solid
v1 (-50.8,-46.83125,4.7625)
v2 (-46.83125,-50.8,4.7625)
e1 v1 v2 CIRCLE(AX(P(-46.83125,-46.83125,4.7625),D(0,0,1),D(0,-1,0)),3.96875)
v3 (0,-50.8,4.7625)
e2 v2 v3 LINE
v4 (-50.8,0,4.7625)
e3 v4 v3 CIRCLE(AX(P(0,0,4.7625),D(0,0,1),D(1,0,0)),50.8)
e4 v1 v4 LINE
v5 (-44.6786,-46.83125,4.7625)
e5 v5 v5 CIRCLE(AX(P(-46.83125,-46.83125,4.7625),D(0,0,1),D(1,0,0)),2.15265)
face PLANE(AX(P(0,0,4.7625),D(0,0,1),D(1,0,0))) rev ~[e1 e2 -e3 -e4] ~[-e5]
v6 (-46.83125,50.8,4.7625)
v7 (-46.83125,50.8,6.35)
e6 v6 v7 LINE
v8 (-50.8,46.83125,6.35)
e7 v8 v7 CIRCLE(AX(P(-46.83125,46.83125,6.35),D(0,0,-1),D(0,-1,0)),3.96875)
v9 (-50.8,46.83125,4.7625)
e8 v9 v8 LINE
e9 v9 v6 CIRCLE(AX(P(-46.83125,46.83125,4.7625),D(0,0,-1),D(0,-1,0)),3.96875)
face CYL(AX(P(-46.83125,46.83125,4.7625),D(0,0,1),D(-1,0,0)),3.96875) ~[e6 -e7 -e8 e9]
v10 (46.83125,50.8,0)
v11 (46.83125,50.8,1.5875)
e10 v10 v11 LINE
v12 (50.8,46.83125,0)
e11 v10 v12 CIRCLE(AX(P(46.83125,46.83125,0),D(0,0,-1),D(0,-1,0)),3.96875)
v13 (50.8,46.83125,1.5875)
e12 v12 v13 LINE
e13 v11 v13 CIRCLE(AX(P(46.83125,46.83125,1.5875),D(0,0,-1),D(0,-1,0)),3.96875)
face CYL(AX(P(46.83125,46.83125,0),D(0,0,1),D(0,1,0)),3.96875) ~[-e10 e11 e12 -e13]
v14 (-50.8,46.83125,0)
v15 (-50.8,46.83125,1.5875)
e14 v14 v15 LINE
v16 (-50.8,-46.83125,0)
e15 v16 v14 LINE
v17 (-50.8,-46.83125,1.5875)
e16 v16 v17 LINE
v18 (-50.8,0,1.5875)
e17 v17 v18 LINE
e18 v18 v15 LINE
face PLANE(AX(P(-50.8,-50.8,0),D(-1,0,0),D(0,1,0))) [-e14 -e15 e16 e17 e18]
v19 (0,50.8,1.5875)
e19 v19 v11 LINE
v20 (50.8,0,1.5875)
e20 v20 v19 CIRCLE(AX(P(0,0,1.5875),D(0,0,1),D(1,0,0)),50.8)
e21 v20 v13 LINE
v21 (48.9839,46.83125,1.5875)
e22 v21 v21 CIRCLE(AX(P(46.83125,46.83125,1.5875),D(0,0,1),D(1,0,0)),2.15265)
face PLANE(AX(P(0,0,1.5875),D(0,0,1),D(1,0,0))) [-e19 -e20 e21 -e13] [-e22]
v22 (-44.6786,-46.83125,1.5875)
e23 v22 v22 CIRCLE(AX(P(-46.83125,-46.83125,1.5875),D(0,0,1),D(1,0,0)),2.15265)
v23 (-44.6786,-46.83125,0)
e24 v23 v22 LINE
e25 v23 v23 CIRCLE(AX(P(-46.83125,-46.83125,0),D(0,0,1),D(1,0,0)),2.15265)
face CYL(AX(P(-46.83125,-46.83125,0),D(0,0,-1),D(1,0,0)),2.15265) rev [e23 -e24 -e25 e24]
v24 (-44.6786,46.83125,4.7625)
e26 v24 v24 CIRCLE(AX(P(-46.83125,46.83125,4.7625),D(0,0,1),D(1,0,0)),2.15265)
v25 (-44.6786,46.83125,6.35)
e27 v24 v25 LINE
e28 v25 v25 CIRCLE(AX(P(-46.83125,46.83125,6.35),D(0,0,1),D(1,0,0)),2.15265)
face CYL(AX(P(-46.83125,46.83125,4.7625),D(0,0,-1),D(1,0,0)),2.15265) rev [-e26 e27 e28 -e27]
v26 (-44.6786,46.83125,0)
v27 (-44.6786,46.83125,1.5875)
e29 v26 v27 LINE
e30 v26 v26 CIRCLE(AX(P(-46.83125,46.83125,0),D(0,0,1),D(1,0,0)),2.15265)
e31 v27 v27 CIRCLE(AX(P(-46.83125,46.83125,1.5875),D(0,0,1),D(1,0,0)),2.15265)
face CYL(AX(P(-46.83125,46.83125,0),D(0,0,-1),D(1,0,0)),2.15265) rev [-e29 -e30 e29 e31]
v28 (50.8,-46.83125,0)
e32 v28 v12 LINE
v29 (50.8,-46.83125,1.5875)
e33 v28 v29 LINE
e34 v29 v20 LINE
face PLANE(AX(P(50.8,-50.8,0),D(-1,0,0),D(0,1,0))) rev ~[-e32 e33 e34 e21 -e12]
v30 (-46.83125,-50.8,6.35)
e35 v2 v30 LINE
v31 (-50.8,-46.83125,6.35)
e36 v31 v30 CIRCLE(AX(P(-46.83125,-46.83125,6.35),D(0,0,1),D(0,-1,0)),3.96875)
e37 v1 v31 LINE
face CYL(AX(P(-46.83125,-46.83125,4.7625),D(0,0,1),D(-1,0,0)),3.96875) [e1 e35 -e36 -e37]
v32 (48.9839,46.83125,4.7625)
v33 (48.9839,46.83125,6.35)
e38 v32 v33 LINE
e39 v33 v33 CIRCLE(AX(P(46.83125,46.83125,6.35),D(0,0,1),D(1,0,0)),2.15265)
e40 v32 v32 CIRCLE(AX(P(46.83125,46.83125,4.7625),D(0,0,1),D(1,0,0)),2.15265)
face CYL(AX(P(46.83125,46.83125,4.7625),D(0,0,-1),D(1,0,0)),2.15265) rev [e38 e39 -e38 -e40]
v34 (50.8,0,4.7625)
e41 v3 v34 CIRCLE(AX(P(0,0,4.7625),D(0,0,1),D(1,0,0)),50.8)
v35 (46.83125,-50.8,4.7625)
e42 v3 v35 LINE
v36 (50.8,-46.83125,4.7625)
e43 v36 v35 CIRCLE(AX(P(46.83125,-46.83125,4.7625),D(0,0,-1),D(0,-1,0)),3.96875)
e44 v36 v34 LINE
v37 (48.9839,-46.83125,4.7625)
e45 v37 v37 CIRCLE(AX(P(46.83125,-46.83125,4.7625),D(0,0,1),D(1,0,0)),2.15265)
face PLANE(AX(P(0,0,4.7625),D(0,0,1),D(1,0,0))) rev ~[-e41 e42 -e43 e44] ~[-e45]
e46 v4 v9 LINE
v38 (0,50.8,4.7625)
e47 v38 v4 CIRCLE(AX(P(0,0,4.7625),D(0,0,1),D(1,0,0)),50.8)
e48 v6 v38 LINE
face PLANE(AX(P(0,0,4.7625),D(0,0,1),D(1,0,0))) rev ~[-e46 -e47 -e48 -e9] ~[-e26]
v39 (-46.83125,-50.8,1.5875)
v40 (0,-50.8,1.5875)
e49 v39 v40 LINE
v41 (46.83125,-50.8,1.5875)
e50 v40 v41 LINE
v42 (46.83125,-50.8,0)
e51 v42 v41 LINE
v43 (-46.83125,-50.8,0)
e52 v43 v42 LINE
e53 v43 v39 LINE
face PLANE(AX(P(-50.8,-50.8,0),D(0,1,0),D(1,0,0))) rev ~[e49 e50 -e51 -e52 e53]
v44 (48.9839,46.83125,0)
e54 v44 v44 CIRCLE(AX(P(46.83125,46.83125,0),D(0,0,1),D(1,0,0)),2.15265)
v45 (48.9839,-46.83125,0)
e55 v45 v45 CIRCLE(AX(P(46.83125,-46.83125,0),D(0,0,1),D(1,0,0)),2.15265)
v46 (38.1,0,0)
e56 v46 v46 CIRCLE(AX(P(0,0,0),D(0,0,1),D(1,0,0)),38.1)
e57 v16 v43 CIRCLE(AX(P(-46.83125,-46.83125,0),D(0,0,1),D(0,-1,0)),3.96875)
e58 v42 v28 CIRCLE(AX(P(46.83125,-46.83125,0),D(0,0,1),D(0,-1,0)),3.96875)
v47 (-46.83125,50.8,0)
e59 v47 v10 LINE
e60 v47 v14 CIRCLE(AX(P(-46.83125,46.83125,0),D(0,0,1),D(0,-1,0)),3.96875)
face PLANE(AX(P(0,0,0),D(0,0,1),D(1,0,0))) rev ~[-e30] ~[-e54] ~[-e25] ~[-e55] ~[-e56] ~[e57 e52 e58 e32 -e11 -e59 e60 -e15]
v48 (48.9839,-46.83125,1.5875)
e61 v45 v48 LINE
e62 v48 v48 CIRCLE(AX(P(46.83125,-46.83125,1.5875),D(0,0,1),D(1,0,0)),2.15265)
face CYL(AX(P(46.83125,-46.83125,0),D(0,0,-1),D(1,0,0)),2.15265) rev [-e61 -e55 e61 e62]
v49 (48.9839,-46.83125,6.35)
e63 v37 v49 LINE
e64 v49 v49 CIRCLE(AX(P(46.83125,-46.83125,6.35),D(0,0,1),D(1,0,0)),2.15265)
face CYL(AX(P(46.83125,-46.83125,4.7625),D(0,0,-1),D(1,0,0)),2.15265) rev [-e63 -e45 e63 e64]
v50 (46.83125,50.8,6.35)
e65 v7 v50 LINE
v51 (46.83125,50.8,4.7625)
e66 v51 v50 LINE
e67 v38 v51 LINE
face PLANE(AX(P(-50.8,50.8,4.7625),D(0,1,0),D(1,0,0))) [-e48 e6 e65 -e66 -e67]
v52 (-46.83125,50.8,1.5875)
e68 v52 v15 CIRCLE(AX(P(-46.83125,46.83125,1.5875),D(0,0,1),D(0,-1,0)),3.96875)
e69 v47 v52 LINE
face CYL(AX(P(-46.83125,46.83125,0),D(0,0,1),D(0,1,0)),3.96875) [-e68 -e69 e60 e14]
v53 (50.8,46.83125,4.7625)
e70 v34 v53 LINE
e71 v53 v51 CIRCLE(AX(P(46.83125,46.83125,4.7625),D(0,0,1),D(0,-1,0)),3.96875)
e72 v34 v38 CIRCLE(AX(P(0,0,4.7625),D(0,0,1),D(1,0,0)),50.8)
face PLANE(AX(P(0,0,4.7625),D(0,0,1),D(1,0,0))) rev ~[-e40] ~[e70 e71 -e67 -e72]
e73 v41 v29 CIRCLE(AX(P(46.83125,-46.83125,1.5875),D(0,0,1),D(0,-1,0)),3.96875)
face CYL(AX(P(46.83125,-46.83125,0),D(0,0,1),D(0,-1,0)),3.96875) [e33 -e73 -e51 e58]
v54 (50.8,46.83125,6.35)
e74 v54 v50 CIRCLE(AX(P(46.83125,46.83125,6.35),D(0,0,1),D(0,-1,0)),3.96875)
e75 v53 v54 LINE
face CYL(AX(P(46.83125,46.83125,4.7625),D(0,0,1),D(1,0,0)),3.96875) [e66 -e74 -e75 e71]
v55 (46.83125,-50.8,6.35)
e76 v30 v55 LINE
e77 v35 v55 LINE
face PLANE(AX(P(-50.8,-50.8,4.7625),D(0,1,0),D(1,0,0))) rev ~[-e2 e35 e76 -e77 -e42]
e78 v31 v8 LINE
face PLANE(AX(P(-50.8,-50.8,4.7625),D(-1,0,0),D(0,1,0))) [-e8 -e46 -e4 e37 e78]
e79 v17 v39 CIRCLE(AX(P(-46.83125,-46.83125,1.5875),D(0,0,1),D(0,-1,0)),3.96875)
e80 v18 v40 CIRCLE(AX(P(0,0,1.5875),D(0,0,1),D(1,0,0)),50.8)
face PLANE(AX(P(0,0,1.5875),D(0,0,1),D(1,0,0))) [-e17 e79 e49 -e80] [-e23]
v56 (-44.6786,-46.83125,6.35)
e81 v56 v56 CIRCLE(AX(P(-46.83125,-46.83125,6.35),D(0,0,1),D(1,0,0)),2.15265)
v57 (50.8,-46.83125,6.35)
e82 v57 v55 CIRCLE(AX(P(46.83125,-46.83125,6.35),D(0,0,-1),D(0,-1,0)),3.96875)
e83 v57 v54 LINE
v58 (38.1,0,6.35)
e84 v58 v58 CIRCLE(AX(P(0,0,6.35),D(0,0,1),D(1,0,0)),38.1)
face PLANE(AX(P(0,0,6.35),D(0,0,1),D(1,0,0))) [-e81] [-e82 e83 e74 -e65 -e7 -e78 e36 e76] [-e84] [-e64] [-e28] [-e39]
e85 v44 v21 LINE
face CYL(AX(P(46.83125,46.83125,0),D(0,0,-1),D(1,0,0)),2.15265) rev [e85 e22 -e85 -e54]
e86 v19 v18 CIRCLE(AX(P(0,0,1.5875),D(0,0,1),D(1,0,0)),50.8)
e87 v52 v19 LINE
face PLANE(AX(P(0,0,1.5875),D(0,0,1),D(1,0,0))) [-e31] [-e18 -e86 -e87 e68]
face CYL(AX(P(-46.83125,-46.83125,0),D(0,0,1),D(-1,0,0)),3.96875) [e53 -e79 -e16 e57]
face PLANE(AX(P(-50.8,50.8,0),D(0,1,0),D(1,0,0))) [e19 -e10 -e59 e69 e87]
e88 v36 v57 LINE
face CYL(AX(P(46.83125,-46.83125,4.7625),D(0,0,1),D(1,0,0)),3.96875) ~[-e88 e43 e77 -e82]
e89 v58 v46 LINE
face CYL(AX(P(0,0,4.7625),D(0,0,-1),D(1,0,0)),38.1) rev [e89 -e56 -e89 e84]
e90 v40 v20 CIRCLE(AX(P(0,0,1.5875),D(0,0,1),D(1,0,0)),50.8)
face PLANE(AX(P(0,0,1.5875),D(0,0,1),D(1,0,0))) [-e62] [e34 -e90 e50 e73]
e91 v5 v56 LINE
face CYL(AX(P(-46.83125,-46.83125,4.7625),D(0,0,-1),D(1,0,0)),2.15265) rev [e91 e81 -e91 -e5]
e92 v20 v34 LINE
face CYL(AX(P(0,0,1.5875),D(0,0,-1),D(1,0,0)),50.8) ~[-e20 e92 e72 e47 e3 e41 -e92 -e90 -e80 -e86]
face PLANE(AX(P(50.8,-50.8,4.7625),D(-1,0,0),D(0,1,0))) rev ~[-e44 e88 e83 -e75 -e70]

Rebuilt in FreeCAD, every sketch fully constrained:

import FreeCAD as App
import Part
import Sketcher
Q = App.Units.Quantity


def edges_at(feature, points):
    """Names of the edges that pass closest to the given points."""
    edges = feature.Shape.Edges
    near = lambda p: min(range(len(edges)), key=lambda i: edges[i].distToShape(Part.Vertex(*p))[0])
    return sorted({f"Edge{near(p) + 1}" for p in points})


def add_polygon(sketch, points):
    """Adds a closed chain of lines whose ends are joined by coincident constraints."""
    first, n = sketch.GeometryCount, len(points)
    for a, b in zip(points, points[1:] + points[:1]):
        sketch.addGeometry(Part.LineSegment(App.Vector(*a, 0), App.Vector(*b, 0)), False)
    for i in range(n):
        sketch.addConstraint(Sketcher.Constraint("Coincident", first + i, 2, first + (i + 1) % n, 1))

doc = App.newDocument("Part")
params = doc.addObject("Spreadsheet::Sheet", "Params")
for row, (alias, value) in enumerate([
    ("sketch1_diameter", "3 in"),
    ("sketch1_width", "4 in"),
    ("pad1_length", "0.0625 in"),
    ("sketch2_diameter", "4 in"),
    ("sketch2_diameter2", "3 in"),
    ("pad2_length", "0.125 in"),
    ("sketch3_diameter", "3 in"),
    ("sketch3_width", "4 in"),
    ("pad3_length", "0.0625 in"),
    ("fillet_radius", "0.15625 in"),
], start=1):
    params.set(f"A{row}", alias)
    params.set(f"B{row}", "=" + value)
    params.setAlias(f"B{row}", alias)

body = doc.addObject("PartDesign::Body", "Body")

sketch1 = body.newObject("Sketcher::SketchObject", "Sketch")
sketch1.AttachmentSupport = (doc.getObject("XY_Plane"), [""])
sketch1.MapMode = "FlatFace"
add_polygon(sketch1, [(-50.8, 50.8), (-50.8, -50.8), (50.8, -50.8), (50.8, 50.8)])
sketch1.addGeometry(Part.Circle(App.Vector(-46.8, -46.8, 0), App.Vector(0, 0, 1), 2.2), False)
sketch1.addGeometry(Part.Circle(App.Vector(46.8, -46.8, 0), App.Vector(0, 0, 1), 2.2), False)
sketch1.addGeometry(Part.Circle(App.Vector(-46.8, 46.8, 0), App.Vector(0, 0, 1), 2.2), False)
sketch1.addGeometry(Part.Circle(App.Vector(0, 0, 0), App.Vector(0, 0, 1), 38.1), False)
sketch1.addGeometry(Part.Circle(App.Vector(46.8, 46.8, 0), App.Vector(0, 0, 1), 2.2), False)
sketch1.addConstraint(Sketcher.Constraint("Vertical", 0))
sketch1.addConstraint(Sketcher.Constraint("Horizontal", 1))
sketch1.addConstraint(Sketcher.Constraint("Vertical", 2))
sketch1.addConstraint(Sketcher.Constraint("Horizontal", 3))
sketch1.addConstraint(Sketcher.Constraint("Coincident", 7, 3, -1, 1))
sketch1.addConstraint(Sketcher.Constraint("Equal", 4, 5))
sketch1.addConstraint(Sketcher.Constraint("Equal", 5, 6))
sketch1.addConstraint(Sketcher.Constraint("Equal", 6, 8))
sketch1.addConstraint(Sketcher.Constraint("Symmetric", 5, 3, 6, 3, -1, 1))
sketch1.addConstraint(Sketcher.Constraint("Symmetric", 4, 3, 8, 3, -1, 1))
sketch1.addConstraint(Sketcher.Constraint("Symmetric", 0, 2, 2, 2, -1, 1))
sketch1.addConstraint(Sketcher.Constraint("Symmetric", 4, 3, 5, 3, -2))
sketch1.addConstraint(Sketcher.Constraint("Equal", 3, 0))
sketch1.addConstraint(Sketcher.Constraint("Diameter", 7, Q("3 in")))
sketch1.addConstraint(Sketcher.Constraint("DistanceX", 1, 1, 1, 2, Q("4 in")))
sketch1.addConstraint(Sketcher.Constraint("Diameter", 4, Q("0.1695 in")))
sketch1.addConstraint(Sketcher.Constraint("DistanceX", 4, 3, -1, 1, Q("1.84375 in")))
sketch1.addConstraint(Sketcher.Constraint("DistanceY", 4, 3, -1, 1, Q("1.84375 in")))
sketch1.setExpression("Constraints[17]", "Params.sketch1_diameter")
sketch1.setExpression("Constraints[18]", "Params.sketch1_width")
pad1 = body.newObject("PartDesign::Pad", "Pad")
pad1.Profile = sketch1
pad1.setExpression("Length", "Params.pad1_length")

sketch2 = body.newObject("Sketcher::SketchObject", "Sketch001")
sketch2.AttachmentSupport = (doc.getObject("XY_Plane"), [""])
sketch2.MapMode = "FlatFace"
sketch2.AttachmentOffset = App.Placement(App.Vector(0, 0, 0.0625 * 25.4), App.Rotation())
sketch2.addGeometry(Part.Circle(App.Vector(0, 0, 0), App.Vector(0, 0, 1), 51), False)
sketch2.addGeometry(Part.Circle(App.Vector(0, 0, 0), App.Vector(0, 0, 1), 38), False)
sketch2.addConstraint(Sketcher.Constraint("Coincident", 0, 3, -1, 1))
sketch2.addConstraint(Sketcher.Constraint("Coincident", 1, 3, -1, 1))
sketch2.addConstraint(Sketcher.Constraint("Diameter", 0, Q("4 in")))
sketch2.addConstraint(Sketcher.Constraint("Diameter", 1, Q("3 in")))
sketch2.setExpression("Constraints[2]", "Params.sketch2_diameter")
sketch2.setExpression("Constraints[3]", "Params.sketch2_diameter2")
pad2 = body.newObject("PartDesign::Pad", "Pad001")
pad2.Profile = sketch2
pad2.setExpression("Length", "Params.pad2_length")

sketch3 = body.newObject("Sketcher::SketchObject", "Sketch002")
sketch3.AttachmentSupport = (doc.getObject("XY_Plane"), [""])
sketch3.MapMode = "FlatFace"
sketch3.AttachmentOffset = App.Placement(App.Vector(0, 0, 0.1875 * 25.4), App.Rotation())
add_polygon(sketch3, [(-50.8, 50.8), (-50.8, -50.8), (50.8, -50.8), (50.8, 50.8)])
sketch3.addGeometry(Part.Circle(App.Vector(-46.8, -46.8, 0), App.Vector(0, 0, 1), 2.2), False)
sketch3.addGeometry(Part.Circle(App.Vector(46.8, -46.8, 0), App.Vector(0, 0, 1), 2.2), False)
sketch3.addGeometry(Part.Circle(App.Vector(-46.8, 46.8, 0), App.Vector(0, 0, 1), 2.2), False)
sketch3.addGeometry(Part.Circle(App.Vector(0, 0, 0), App.Vector(0, 0, 1), 38.1), False)
sketch3.addGeometry(Part.Circle(App.Vector(46.8, 46.8, 0), App.Vector(0, 0, 1), 2.2), False)
sketch3.addConstraint(Sketcher.Constraint("Vertical", 0))
sketch3.addConstraint(Sketcher.Constraint("Horizontal", 1))
sketch3.addConstraint(Sketcher.Constraint("Vertical", 2))
sketch3.addConstraint(Sketcher.Constraint("Horizontal", 3))
sketch3.addConstraint(Sketcher.Constraint("Coincident", 7, 3, -1, 1))
sketch3.addConstraint(Sketcher.Constraint("Equal", 4, 5))
sketch3.addConstraint(Sketcher.Constraint("Equal", 5, 6))
sketch3.addConstraint(Sketcher.Constraint("Equal", 6, 8))
sketch3.addConstraint(Sketcher.Constraint("Symmetric", 5, 3, 6, 3, -1, 1))
sketch3.addConstraint(Sketcher.Constraint("Symmetric", 4, 3, 8, 3, -1, 1))
sketch3.addConstraint(Sketcher.Constraint("Symmetric", 0, 2, 2, 2, -1, 1))
sketch3.addConstraint(Sketcher.Constraint("Symmetric", 4, 3, 5, 3, -2))
sketch3.addConstraint(Sketcher.Constraint("Equal", 3, 0))
sketch3.addConstraint(Sketcher.Constraint("Diameter", 7, Q("3 in")))
sketch3.addConstraint(Sketcher.Constraint("DistanceX", 1, 1, 1, 2, Q("4 in")))
sketch3.addConstraint(Sketcher.Constraint("Diameter", 4, Q("0.1695 in")))
sketch3.addConstraint(Sketcher.Constraint("DistanceX", 4, 3, -1, 1, Q("1.84375 in")))
sketch3.addConstraint(Sketcher.Constraint("DistanceY", 4, 3, -1, 1, Q("1.84375 in")))
sketch3.setExpression("Constraints[17]", "Params.sketch3_diameter")
sketch3.setExpression("Constraints[18]", "Params.sketch3_width")
pad3 = body.newObject("PartDesign::Pad", "Pad002")
pad3.Profile = sketch3
pad3.setExpression("Length", "Params.pad3_length")
doc.recompute()

fillet = body.newObject("PartDesign::Fillet", "Fillet")
fillet.Base = (pad3, edges_at(pad3, [
    (-50.8, 50.8, 0.794),
    (-50.8, -50.8, 0.794),
    (50.8, -50.8, 0.794),
    (50.8, 50.8, 0.794),
    (-50.8, 50.8, 5.556),
    (-50.8, -50.8, 5.556),
    (50.8, -50.8, 5.556),
    (50.8, 50.8, 5.556),
]))
fillet.setExpression("Radius", "Params.fillet_radius")

doc.recompute()
